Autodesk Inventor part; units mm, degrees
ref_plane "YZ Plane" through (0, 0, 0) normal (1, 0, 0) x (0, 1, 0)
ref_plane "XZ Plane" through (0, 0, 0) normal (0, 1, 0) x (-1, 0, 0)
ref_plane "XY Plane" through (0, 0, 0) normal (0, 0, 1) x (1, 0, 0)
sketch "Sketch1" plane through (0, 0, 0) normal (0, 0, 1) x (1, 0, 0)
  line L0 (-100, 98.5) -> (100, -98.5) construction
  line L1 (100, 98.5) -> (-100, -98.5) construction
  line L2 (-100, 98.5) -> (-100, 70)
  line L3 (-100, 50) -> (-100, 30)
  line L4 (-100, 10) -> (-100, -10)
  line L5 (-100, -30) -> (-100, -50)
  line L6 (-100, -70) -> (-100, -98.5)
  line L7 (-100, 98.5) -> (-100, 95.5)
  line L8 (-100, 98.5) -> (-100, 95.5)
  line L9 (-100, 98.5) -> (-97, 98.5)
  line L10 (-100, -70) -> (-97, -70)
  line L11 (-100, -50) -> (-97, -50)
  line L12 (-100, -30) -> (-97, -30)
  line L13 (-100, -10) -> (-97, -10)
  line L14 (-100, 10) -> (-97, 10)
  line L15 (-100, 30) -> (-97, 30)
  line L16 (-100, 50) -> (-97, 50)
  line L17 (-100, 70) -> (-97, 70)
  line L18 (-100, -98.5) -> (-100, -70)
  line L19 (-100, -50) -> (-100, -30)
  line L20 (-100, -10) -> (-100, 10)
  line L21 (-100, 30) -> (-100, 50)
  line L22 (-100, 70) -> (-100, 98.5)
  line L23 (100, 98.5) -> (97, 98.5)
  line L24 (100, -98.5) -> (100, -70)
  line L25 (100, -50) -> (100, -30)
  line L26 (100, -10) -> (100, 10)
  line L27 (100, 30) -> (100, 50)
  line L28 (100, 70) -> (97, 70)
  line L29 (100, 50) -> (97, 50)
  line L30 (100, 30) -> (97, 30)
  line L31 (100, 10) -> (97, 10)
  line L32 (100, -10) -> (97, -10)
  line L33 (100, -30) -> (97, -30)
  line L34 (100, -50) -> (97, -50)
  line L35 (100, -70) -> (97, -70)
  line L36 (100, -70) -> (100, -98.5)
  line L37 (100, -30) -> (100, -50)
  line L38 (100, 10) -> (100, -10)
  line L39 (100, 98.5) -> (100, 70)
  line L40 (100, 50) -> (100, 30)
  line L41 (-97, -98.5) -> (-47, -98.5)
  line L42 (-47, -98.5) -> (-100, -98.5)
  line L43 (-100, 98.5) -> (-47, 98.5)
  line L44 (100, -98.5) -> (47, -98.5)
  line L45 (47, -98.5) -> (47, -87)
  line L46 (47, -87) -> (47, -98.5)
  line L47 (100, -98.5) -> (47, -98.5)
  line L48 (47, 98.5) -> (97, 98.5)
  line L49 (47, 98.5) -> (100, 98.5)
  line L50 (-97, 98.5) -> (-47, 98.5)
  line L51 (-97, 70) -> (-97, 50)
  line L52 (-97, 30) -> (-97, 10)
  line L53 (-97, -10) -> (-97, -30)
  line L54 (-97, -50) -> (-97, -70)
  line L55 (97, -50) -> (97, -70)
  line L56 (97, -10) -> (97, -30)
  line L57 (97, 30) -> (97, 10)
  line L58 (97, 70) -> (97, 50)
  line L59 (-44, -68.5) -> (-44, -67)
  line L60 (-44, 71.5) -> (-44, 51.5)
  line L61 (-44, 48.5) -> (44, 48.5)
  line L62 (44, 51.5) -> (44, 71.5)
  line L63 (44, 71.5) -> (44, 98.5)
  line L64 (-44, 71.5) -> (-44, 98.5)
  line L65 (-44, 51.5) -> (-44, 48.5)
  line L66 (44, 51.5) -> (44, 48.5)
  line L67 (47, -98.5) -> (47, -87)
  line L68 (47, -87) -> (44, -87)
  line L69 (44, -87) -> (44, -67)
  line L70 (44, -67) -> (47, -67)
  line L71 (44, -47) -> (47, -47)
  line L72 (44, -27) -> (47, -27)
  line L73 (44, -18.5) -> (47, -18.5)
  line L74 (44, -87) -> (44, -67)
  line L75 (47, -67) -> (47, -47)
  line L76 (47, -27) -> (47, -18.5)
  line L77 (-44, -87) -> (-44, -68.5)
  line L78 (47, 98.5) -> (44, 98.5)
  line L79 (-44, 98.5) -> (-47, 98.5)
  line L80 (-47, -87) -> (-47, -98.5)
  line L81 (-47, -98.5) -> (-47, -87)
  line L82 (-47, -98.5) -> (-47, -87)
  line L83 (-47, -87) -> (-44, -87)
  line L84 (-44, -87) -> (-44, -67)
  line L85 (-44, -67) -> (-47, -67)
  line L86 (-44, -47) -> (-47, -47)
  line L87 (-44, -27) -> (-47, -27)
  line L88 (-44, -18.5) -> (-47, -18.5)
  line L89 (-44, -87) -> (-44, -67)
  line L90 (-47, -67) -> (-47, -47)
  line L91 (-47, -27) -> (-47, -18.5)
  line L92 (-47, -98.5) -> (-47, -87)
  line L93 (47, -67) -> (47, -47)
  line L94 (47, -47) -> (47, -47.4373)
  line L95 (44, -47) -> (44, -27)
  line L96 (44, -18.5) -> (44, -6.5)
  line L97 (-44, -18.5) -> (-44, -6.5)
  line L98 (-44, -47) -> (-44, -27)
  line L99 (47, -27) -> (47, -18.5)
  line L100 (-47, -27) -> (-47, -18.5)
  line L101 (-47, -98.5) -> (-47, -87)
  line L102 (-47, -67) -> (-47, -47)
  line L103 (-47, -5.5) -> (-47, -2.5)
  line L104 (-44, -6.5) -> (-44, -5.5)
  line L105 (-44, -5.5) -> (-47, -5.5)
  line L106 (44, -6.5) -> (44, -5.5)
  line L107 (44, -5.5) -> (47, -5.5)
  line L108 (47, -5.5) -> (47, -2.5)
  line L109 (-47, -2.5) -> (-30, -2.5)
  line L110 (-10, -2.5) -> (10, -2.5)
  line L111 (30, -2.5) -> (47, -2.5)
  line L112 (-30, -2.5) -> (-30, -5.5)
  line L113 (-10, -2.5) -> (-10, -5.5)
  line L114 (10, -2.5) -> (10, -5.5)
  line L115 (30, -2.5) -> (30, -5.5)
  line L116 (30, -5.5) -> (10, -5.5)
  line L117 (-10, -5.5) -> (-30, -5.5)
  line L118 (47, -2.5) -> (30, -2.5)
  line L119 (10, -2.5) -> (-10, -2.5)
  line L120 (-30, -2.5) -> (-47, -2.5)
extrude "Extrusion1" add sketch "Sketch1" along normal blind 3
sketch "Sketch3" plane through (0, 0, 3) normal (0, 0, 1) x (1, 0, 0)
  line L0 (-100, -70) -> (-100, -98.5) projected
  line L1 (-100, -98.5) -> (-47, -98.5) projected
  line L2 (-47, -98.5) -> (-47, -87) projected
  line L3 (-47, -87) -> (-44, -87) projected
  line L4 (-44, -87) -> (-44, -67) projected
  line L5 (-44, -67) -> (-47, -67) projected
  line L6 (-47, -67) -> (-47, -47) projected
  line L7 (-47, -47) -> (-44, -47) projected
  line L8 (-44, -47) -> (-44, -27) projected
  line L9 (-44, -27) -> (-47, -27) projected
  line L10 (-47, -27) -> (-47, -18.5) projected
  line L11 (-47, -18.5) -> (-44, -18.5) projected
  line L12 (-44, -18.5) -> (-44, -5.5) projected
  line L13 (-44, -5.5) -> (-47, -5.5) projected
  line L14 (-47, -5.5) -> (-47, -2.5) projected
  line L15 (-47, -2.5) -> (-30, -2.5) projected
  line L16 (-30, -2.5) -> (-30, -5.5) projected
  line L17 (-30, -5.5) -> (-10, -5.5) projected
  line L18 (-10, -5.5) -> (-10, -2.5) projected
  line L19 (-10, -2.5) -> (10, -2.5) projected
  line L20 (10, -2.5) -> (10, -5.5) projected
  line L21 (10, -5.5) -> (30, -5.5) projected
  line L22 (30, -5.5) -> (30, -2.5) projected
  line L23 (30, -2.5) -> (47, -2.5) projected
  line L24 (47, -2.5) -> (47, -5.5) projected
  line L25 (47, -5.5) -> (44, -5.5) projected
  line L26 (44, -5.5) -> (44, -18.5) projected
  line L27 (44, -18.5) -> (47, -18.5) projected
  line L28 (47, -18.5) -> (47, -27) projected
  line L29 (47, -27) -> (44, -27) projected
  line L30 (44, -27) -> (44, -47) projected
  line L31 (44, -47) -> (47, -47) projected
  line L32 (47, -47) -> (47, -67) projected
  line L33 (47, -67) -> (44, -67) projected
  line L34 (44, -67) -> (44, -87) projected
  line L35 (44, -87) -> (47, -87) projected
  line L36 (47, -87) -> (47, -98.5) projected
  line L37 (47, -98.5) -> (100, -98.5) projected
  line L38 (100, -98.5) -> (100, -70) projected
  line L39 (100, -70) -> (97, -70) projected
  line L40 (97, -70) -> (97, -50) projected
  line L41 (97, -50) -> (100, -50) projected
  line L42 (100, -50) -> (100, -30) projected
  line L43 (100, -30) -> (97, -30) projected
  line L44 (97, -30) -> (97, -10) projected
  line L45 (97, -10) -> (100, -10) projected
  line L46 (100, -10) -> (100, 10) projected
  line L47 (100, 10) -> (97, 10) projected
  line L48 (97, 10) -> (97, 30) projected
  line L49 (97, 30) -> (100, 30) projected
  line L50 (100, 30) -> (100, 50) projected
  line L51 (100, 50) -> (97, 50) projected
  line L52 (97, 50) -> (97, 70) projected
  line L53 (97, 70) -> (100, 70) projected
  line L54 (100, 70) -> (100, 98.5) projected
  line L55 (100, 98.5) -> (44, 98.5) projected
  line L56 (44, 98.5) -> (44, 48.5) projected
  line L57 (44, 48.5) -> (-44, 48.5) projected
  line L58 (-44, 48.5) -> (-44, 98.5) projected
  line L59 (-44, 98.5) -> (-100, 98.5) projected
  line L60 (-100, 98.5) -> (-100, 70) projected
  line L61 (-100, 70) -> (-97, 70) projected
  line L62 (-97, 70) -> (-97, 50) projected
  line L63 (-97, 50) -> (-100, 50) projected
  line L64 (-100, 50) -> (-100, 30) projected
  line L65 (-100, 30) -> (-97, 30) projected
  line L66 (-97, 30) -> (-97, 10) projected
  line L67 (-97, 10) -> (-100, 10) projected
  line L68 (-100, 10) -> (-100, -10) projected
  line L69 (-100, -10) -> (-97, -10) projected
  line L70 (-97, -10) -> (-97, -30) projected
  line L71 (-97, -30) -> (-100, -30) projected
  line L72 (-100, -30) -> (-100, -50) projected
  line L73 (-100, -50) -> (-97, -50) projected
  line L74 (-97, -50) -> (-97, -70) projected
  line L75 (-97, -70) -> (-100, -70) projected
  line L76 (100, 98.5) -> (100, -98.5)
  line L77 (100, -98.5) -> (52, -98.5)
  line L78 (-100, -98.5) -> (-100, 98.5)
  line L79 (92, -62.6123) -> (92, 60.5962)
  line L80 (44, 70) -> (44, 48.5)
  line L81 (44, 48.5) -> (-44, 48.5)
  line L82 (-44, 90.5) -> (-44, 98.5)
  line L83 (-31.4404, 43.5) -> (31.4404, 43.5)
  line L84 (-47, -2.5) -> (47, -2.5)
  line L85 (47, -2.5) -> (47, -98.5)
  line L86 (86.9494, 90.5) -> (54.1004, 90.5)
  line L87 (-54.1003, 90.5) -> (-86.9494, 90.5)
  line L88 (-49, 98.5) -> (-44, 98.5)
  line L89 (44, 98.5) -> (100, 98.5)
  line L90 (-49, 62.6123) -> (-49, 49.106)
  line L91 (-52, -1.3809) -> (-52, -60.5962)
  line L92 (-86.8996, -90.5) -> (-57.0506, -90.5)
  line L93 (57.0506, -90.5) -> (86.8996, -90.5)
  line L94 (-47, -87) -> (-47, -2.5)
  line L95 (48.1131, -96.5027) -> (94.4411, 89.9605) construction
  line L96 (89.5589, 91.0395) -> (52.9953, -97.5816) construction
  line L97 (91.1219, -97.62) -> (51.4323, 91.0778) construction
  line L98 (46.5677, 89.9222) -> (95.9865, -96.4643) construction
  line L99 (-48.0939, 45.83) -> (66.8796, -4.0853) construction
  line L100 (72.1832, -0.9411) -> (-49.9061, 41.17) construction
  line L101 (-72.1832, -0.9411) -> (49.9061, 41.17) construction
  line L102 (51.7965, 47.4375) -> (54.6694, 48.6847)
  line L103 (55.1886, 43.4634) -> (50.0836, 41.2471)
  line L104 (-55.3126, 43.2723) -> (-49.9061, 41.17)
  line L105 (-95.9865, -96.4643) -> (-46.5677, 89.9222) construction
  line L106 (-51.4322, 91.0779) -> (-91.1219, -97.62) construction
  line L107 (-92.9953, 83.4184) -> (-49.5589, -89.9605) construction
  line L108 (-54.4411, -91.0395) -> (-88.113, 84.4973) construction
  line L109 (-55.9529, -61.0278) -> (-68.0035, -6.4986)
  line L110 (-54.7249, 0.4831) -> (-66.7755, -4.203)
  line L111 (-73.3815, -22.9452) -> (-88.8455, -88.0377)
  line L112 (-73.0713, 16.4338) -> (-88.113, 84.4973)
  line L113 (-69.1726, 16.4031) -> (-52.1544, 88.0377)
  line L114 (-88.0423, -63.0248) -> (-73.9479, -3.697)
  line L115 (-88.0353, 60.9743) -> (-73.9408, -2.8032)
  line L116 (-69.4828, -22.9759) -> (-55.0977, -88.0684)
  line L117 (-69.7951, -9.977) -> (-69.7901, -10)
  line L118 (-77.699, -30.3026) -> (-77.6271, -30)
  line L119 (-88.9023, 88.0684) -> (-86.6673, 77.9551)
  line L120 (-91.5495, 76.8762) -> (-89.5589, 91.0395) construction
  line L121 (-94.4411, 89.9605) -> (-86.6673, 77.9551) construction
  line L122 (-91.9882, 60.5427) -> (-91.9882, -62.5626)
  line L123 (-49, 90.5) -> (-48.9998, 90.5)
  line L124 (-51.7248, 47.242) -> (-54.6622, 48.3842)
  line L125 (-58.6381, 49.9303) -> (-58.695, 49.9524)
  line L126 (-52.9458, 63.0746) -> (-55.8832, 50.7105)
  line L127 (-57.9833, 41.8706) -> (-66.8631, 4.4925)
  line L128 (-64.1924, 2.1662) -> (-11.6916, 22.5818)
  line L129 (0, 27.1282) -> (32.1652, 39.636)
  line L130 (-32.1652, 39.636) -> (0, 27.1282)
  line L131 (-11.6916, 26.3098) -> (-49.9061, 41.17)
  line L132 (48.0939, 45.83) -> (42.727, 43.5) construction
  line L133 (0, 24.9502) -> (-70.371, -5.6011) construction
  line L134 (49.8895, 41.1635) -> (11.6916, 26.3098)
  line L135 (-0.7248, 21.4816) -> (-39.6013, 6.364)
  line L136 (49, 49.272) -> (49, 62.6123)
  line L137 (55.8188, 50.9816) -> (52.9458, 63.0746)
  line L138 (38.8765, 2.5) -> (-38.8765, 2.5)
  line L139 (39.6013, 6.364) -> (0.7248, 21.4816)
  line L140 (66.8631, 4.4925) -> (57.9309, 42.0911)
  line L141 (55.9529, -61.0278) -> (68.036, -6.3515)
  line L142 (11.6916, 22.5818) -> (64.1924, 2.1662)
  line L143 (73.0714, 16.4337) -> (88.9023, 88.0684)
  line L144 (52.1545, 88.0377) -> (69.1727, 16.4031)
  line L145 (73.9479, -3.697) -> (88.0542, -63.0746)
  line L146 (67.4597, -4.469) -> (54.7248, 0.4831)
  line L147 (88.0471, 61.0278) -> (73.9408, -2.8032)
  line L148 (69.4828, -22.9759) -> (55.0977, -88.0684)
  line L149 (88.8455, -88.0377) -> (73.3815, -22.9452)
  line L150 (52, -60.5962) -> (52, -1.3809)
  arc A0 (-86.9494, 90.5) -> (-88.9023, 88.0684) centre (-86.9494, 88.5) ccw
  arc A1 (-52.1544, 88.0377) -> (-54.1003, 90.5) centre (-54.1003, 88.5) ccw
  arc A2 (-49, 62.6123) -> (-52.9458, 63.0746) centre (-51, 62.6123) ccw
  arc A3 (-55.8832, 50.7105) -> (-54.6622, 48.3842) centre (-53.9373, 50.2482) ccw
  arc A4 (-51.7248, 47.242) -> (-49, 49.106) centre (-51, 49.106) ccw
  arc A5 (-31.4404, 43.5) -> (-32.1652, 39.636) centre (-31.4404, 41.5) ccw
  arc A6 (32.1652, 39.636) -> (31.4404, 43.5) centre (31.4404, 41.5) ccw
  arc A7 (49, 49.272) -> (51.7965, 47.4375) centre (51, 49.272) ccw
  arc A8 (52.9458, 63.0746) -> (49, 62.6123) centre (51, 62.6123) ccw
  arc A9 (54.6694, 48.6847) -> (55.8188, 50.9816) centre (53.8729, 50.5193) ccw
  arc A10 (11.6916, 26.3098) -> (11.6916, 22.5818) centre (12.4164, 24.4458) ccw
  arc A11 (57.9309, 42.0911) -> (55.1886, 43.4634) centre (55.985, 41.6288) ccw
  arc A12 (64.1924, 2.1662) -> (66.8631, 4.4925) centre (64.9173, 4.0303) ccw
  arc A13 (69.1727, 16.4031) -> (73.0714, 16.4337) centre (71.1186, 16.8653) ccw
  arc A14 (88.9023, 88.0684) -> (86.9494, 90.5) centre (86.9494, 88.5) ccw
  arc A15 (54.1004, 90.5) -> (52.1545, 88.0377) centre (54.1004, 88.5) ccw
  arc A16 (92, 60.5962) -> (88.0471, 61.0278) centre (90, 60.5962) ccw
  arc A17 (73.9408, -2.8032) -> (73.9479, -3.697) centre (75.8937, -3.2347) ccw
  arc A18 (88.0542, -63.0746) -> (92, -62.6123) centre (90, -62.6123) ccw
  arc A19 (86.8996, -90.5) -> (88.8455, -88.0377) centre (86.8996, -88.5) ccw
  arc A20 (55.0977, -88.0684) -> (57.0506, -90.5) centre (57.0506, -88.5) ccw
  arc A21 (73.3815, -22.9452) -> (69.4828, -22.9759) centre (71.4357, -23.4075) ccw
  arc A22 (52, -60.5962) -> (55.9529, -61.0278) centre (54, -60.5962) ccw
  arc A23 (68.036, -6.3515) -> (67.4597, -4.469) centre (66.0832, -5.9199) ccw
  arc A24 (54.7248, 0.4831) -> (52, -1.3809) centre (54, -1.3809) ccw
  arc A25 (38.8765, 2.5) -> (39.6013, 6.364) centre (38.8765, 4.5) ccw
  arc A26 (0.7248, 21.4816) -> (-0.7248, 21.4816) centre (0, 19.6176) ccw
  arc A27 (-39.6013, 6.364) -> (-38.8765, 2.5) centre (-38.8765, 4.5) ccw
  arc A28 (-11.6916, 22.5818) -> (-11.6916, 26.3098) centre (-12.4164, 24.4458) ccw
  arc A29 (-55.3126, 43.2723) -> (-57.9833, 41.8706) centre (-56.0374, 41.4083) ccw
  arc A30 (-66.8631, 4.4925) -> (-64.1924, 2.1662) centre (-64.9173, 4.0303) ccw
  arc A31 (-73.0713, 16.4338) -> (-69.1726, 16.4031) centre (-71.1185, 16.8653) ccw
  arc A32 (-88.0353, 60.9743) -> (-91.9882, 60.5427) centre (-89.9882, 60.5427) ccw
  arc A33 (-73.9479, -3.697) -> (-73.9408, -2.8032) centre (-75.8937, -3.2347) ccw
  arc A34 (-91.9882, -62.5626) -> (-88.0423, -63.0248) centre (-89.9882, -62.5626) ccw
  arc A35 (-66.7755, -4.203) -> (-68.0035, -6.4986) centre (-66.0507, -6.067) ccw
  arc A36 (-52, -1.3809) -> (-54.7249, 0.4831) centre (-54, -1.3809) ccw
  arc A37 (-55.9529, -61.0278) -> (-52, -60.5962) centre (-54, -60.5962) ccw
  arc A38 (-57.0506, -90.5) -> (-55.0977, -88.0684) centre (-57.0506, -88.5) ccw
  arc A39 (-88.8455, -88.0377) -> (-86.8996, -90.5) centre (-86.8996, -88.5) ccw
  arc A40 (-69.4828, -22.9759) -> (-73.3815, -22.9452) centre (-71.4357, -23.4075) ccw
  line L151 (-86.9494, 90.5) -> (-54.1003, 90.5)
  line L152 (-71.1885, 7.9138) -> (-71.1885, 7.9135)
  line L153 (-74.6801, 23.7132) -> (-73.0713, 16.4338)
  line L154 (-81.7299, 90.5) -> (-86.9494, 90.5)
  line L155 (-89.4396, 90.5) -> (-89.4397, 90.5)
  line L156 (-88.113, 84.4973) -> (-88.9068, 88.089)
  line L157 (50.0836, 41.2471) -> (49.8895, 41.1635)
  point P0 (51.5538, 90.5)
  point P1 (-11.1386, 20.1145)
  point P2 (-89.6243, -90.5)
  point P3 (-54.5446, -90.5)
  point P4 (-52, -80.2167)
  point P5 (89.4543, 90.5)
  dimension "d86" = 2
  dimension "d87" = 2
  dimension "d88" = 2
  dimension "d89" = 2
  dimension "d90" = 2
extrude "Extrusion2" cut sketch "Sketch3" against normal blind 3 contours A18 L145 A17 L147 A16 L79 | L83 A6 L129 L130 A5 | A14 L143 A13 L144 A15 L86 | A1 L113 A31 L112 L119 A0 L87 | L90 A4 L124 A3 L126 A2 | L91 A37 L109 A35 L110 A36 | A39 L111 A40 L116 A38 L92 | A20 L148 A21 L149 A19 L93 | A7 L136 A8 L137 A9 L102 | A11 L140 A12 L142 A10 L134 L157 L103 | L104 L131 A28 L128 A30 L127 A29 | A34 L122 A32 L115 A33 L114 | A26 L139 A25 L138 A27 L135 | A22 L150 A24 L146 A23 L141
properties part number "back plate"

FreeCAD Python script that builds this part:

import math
import FreeCAD as App
import Part
import Sketcher
Q = App.Units.Quantity


def add_polygon(sketch, points):
    """Adds a closed chain of lines whose ends are joined by coincident constraints."""
    first, n = sketch.GeometryCount, len(points)
    for a, b in zip(points, points[1:] + points[:1]):
        sketch.addGeometry(Part.LineSegment(App.Vector(*a, 0), App.Vector(*b, 0)), False)
    for i in range(n):
        sketch.addConstraint(Sketcher.Constraint("Coincident", first + i, 2, first + (i + 1) % n, 1))

doc = App.newDocument("Part")
params = doc.addObject("Spreadsheet::Sheet", "Params")
for row, (alias, value) in enumerate([
    ("sketch1_width", "56 mm"),
    ("sketch1_width2", "3 mm"),
    ("sketch1_width3", "17 mm"),
    ("sketch1_width4", "20 mm"),
    ("sketch1_height", "13 mm"),
    ("pad1_length", "3 mm"),
    ("sketch2_radius", "2 mm"),
    ("pocket1_length", "3 mm"),
], start=1):
    params.set(f"A{row}", alias)
    params.set(f"B{row}", "=" + value)
    params.setAlias(f"B{row}", alias)

body = doc.addObject("PartDesign::Body", "Body")

sketch1 = body.newObject("Sketcher::SketchObject", "Sketch")
sketch1.AttachmentSupport = (doc.getObject("XY_Plane"), [""])
sketch1.MapMode = "FlatFace"
add_polygon(sketch1, [(-44, 98.5), (-100, 98.5), (-100, 70), (-97, 70), (-97, 50), (-100, 50), (-100, 30), (-97, 30), (-97, 10), (-100, 10), (-100, -10), (-97, -10), (-97, -30), (-100, -30), (-100, -50), (-97, -50), (-97, -70), (-100, -70), (-100, -98.5), (-47, -98.5), (-47, -87), (-44, -87), (-44, -67), (-47, -67), (-47, -47), (-44, -47), (-44, -27), (-47, -27), (-47, -18.5), (-44, -18.5), (-44, -5.5), (-47, -5.5), (-47, -2.5), (-30, -2.5), (-30, -5.5), (-10, -5.5), (-10, -2.5), (10, -2.5), (10, -5.5), (30, -5.5), (30, -2.5), (47, -2.5), (47, -5.5), (44, -5.5), (44, -18.5), (47, -18.5), (47, -27), (44, -27), (44, -47), (47, -47), (47, -67), (44, -67), (44, -87), (47, -87), (47, -98.5), (100, -98.5), (100, -70), (97, -70), (97, -50), (100, -50), (100, -30), (97, -30), (97, -10), (100, -10), (100, 10), (97, 10), (97, 30), (100, 30), (100, 50), (97, 50), (97, 70), (100, 70), (100, 98.5), (44, 98.5), (44, 48.5), (-44, 48.5)])
sketch1.addConstraint(Sketcher.Constraint("Horizontal", 0))
sketch1.addConstraint(Sketcher.Constraint("Vertical", 1))
sketch1.addConstraint(Sketcher.Constraint("Horizontal", 2))
sketch1.addConstraint(Sketcher.Constraint("Vertical", 3))
sketch1.addConstraint(Sketcher.Constraint("Horizontal", 4))
sketch1.addConstraint(Sketcher.Constraint("Vertical", 5))
sketch1.addConstraint(Sketcher.Constraint("Horizontal", 6))
sketch1.addConstraint(Sketcher.Constraint("Vertical", 7))
sketch1.addConstraint(Sketcher.Constraint("Horizontal", 8))
sketch1.addConstraint(Sketcher.Constraint("Vertical", 9))
sketch1.addConstraint(Sketcher.Constraint("Horizontal", 10))
sketch1.addConstraint(Sketcher.Constraint("Vertical", 11))
sketch1.addConstraint(Sketcher.Constraint("Horizontal", 12))
sketch1.addConstraint(Sketcher.Constraint("Vertical", 13))
sketch1.addConstraint(Sketcher.Constraint("Horizontal", 14))
sketch1.addConstraint(Sketcher.Constraint("Vertical", 15))
sketch1.addConstraint(Sketcher.Constraint("Horizontal", 16))
sketch1.addConstraint(Sketcher.Constraint("Vertical", 17))
sketch1.addConstraint(Sketcher.Constraint("Horizontal", 18))
sketch1.addConstraint(Sketcher.Constraint("Vertical", 19))
sketch1.addConstraint(Sketcher.Constraint("Horizontal", 20))
sketch1.addConstraint(Sketcher.Constraint("Vertical", 21))
sketch1.addConstraint(Sketcher.Constraint("Horizontal", 22))
sketch1.addConstraint(Sketcher.Constraint("Vertical", 23))
sketch1.addConstraint(Sketcher.Constraint("Horizontal", 24))
sketch1.addConstraint(Sketcher.Constraint("Vertical", 25))
sketch1.addConstraint(Sketcher.Constraint("Horizontal", 26))
sketch1.addConstraint(Sketcher.Constraint("Vertical", 27))
sketch1.addConstraint(Sketcher.Constraint("Horizontal", 28))
sketch1.addConstraint(Sketcher.Constraint("Vertical", 29))
sketch1.addConstraint(Sketcher.Constraint("Horizontal", 30))
sketch1.addConstraint(Sketcher.Constraint("Vertical", 31))
sketch1.addConstraint(Sketcher.Constraint("Horizontal", 32))
sketch1.addConstraint(Sketcher.Constraint("Vertical", 33))
sketch1.addConstraint(Sketcher.Constraint("Horizontal", 34))
sketch1.addConstraint(Sketcher.Constraint("Vertical", 35))
sketch1.addConstraint(Sketcher.Constraint("Horizontal", 36))
sketch1.addConstraint(Sketcher.Constraint("Vertical", 37))
sketch1.addConstraint(Sketcher.Constraint("Horizontal", 38))
sketch1.addConstraint(Sketcher.Constraint("Vertical", 39))
sketch1.addConstraint(Sketcher.Constraint("Horizontal", 40))
sketch1.addConstraint(Sketcher.Constraint("Vertical", 41))
sketch1.addConstraint(Sketcher.Constraint("Horizontal", 42))
sketch1.addConstraint(Sketcher.Constraint("Vertical", 43))
sketch1.addConstraint(Sketcher.Constraint("Horizontal", 44))
sketch1.addConstraint(Sketcher.Constraint("Vertical", 45))
sketch1.addConstraint(Sketcher.Constraint("Horizontal", 46))
sketch1.addConstraint(Sketcher.Constraint("Vertical", 47))
sketch1.addConstraint(Sketcher.Constraint("Horizontal", 48))
sketch1.addConstraint(Sketcher.Constraint("Vertical", 49))
sketch1.addConstraint(Sketcher.Constraint("Horizontal", 50))
sketch1.addConstraint(Sketcher.Constraint("Vertical", 51))
sketch1.addConstraint(Sketcher.Constraint("Horizontal", 52))
sketch1.addConstraint(Sketcher.Constraint("Vertical", 53))
sketch1.addConstraint(Sketcher.Constraint("Horizontal", 54))
sketch1.addConstraint(Sketcher.Constraint("Vertical", 55))
sketch1.addConstraint(Sketcher.Constraint("Horizontal", 56))
sketch1.addConstraint(Sketcher.Constraint("Vertical", 57))
sketch1.addConstraint(Sketcher.Constraint("Horizontal", 58))
sketch1.addConstraint(Sketcher.Constraint("Vertical", 59))
sketch1.addConstraint(Sketcher.Constraint("Horizontal", 60))
sketch1.addConstraint(Sketcher.Constraint("Vertical", 61))
sketch1.addConstraint(Sketcher.Constraint("Horizontal", 62))
sketch1.addConstraint(Sketcher.Constraint("Vertical", 63))
sketch1.addConstraint(Sketcher.Constraint("Horizontal", 64))
sketch1.addConstraint(Sketcher.Constraint("Vertical", 65))
sketch1.addConstraint(Sketcher.Constraint("Horizontal", 66))
sketch1.addConstraint(Sketcher.Constraint("Vertical", 67))
sketch1.addConstraint(Sketcher.Constraint("Horizontal", 68))
sketch1.addConstraint(Sketcher.Constraint("Vertical", 69))
sketch1.addConstraint(Sketcher.Constraint("Horizontal", 70))
sketch1.addConstraint(Sketcher.Constraint("Vertical", 71))
sketch1.addConstraint(Sketcher.Constraint("Horizontal", 72))
sketch1.addConstraint(Sketcher.Constraint("Vertical", 73))
sketch1.addConstraint(Sketcher.Constraint("Horizontal", 74))
sketch1.addConstraint(Sketcher.Constraint("Vertical", 75))
sketch1.addConstraint(Sketcher.Constraint("Symmetric", 0, 2, 54, 2, -1, 1))
sketch1.addConstraint(Sketcher.Constraint("Symmetric", 2, 2, 56, 2, -1, 1))
sketch1.addConstraint(Sketcher.Constraint("Symmetric", 4, 2, 58, 2, -1, 1))
sketch1.addConstraint(Sketcher.Constraint("Symmetric", 6, 2, 60, 2, -1, 1))
sketch1.addConstraint(Sketcher.Constraint("Symmetric", 8, 2, 62, 2, -1, 1))
sketch1.addConstraint(Sketcher.Constraint("Symmetric", 10, 2, 64, 2, -1, 1))
sketch1.addConstraint(Sketcher.Constraint("Symmetric", 12, 2, 66, 2, -1, 1))
sketch1.addConstraint(Sketcher.Constraint("Symmetric", 14, 2, 68, 2, -1, 1))
sketch1.addConstraint(Sketcher.Constraint("Symmetric", 16, 2, 70, 2, -1, 1))
sketch1.addConstraint(Sketcher.Constraint("Symmetric", 34, 2, 37, 2, -2))
sketch1.addConstraint(Sketcher.Constraint("Symmetric", 32, 2, 39, 2, -2))
sketch1.addConstraint(Sketcher.Constraint("Symmetric", 30, 2, 41, 2, -2))
sketch1.addConstraint(Sketcher.Constraint("Symmetric", 28, 2, 43, 2, -2))
sketch1.addConstraint(Sketcher.Constraint("Symmetric", 26, 2, 45, 2, -2))
sketch1.addConstraint(Sketcher.Constraint("Symmetric", 24, 2, 47, 2, -2))
sketch1.addConstraint(Sketcher.Constraint("Symmetric", 22, 2, 49, 2, -2))
sketch1.addConstraint(Sketcher.Constraint("Symmetric", 20, 2, 51, 2, -2))
sketch1.addConstraint(Sketcher.Constraint("Symmetric", 18, 2, 53, 2, -2))
sketch1.addConstraint(Sketcher.Constraint("Symmetric", 16, 2, 55, 2, -2))
sketch1.addConstraint(Sketcher.Constraint("Symmetric", 14, 2, 57, 2, -2))
sketch1.addConstraint(Sketcher.Constraint("Symmetric", 12, 2, 59, 2, -2))
sketch1.addConstraint(Sketcher.Constraint("Symmetric", 10, 2, 61, 2, -2))
sketch1.addConstraint(Sketcher.Constraint("Symmetric", 72, 2, 75, 2, -2))
sketch1.addConstraint(Sketcher.Constraint("Horizontal", 30, 2, 33, 2))
sketch1.addConstraint(Sketcher.Constraint("Horizontal", 32, 2, 35, 2))
sketch1.addConstraint(Sketcher.Constraint("Vertical", 1, 2, 4, 2))
sketch1.addConstraint(Sketcher.Constraint("Vertical", 3, 2, 6, 2))
sketch1.addConstraint(Sketcher.Constraint("Vertical", 5, 2, 8, 2))
sketch1.addConstraint(Sketcher.Constraint("Vertical", 19, 2, 22, 2))
sketch1.addConstraint(Sketcher.Constraint("Vertical", 21, 2, 24, 2))
sketch1.addConstraint(Sketcher.Constraint("Vertical", 23, 2, 26, 2))
sketch1.addConstraint(Sketcher.Constraint("Vertical", 25, 2, 28, 2))
sketch1.addConstraint(Sketcher.Constraint("Vertical", 27, 2, 30, 2))
sketch1.addConstraint(Sketcher.Constraint("Vertical", 51, 2, 72, 2))
sketch1.addConstraint(Sketcher.Constraint("Equal", 16, 20))
sketch1.addConstraint(Sketcher.Constraint("Equal", 34, 36))
sketch1.addConstraint(Sketcher.Constraint("Equal", 38, 3))
sketch1.addConstraint(Sketcher.Constraint("Equal", 3, 5))
sketch1.addConstraint(Sketcher.Constraint("Equal", 5, 7))
sketch1.addConstraint(Sketcher.Constraint("Equal", 7, 9))
sketch1.addConstraint(Sketcher.Constraint("Equal", 15, 21))
sketch1.addConstraint(Sketcher.Constraint("Equal", 21, 23))
sketch1.addConstraint(Sketcher.Constraint("Equal", 23, 25))
sketch1.addConstraint(Sketcher.Constraint("Equal", 70, 31))
sketch1.addConstraint(Sketcher.Constraint("DistanceX", 0, 2, 0, 1, Q("56 mm")))
sketch1.addConstraint(Sketcher.Constraint("DistanceX", 2, 1, 2, 2, Q("3 mm")))
sketch1.addConstraint(Sketcher.Constraint("DistanceX", 32, 1, 32, 2, Q("17 mm")))
sketch1.addConstraint(Sketcher.Constraint("DistanceX", 34, 1, 34, 2, Q("20 mm")))
sketch1.addConstraint(Sketcher.Constraint("DistanceY", 29, 1, 29, 2, Q("13 mm")))
sketch1.addConstraint(Sketcher.Constraint("DistanceY", 73, 2, 73, 1, Q("50 mm")))
sketch1.addConstraint(Sketcher.Constraint("DistanceY", 1, 2, 1, 1, Q("28.5 mm")))
sketch1.addConstraint(Sketcher.Constraint("DistanceY", 19, 1, 19, 2, Q("11.5 mm")))
sketch1.addConstraint(Sketcher.Constraint("DistanceY", 27, 1, 27, 2, Q("8.5 mm")))
sketch1.setExpression("Constraints[196]", "Params.sketch1_width")
sketch1.setExpression("Constraints[197]", "Params.sketch1_width2")
sketch1.setExpression("Constraints[198]", "Params.sketch1_width3")
sketch1.setExpression("Constraints[199]", "Params.sketch1_width4")
sketch1.setExpression("Constraints[200]", "Params.sketch1_height")
pad1 = body.newObject("PartDesign::Pad", "Pad")
pad1.Profile = sketch1
pad1.setExpression("Length", "Params.pad1_length")

sketch2 = body.newObject("Sketcher::SketchObject", "Sketch001")
sketch2.AttachmentSupport = (doc.getObject("XY_Plane"), [""])
sketch2.MapMode = "FlatFace"
sketch2.AttachmentOffset = App.Placement(App.Vector(0, 0, 3), App.Rotation())
sketch2.addGeometry(Part.ArcOfCircle(Part.Circle(App.Vector(90, -62.61, 0), App.Vector(0, 0, 1), 2), math.radians(-167), math.radians(0)), False)
sketch2.addGeometry(Part.LineSegment(App.Vector(92, -62.61, 0), App.Vector(92, 60.6, 0)), False)
sketch2.addGeometry(Part.ArcOfCircle(Part.Circle(App.Vector(90, 60.6, 0), App.Vector(0, 0, 1), 2), math.radians(0), math.radians(168)), False)
sketch2.addGeometry(Part.LineSegment(App.Vector(88.05, 61.03, 0), App.Vector(73.94, -2.8, 0)), False)
sketch2.addGeometry(Part.ArcOfCircle(Part.Circle(App.Vector(75.89, -3.23, 0), App.Vector(0, 0, 1), 2), math.radians(168), math.radians(193)), False)
sketch2.addGeometry(Part.LineSegment(App.Vector(73.95, -3.7, 0), App.Vector(88.05, -63.07, 0)), False)
sketch2.addGeometry(Part.LineSegment(App.Vector(31.44, 43.5, 0), App.Vector(-31.44, 43.5, 0)), False)
sketch2.addGeometry(Part.ArcOfCircle(Part.Circle(App.Vector(-31.44, 41.5, 0), App.Vector(0, 0, 1), 2), math.radians(90), math.radians(249)), False)
sketch2.addGeometry(Part.LineSegment(App.Vector(-32.17, 39.64, 0), App.Vector(0, 27.13, 0)), False)
sketch2.addGeometry(Part.LineSegment(App.Vector(0, 27.13, 0), App.Vector(32.17, 39.64, 0)), False)
sketch2.addGeometry(Part.ArcOfCircle(Part.Circle(App.Vector(31.44, 41.5, 0), App.Vector(0, 0, 1), 2), math.radians(-69), math.radians(90)), False)
sketch2.addGeometry(Part.ArcOfCircle(Part.Circle(App.Vector(86.95, 88.5, 0), App.Vector(0, 0, 1), 2), math.radians(-12), math.radians(90)), False)
sketch2.addGeometry(Part.LineSegment(App.Vector(86.95, 90.5, 0), App.Vector(54.1, 90.5, 0)), False)
sketch2.addGeometry(Part.ArcOfCircle(Part.Circle(App.Vector(54.1, 88.5, 0), App.Vector(0, 0, 1), 2), math.radians(90), math.radians(193)), False)
sketch2.addGeometry(Part.LineSegment(App.Vector(52.15, 88.04, 0), App.Vector(69.17, 16.4, 0)), False)
sketch2.addGeometry(Part.ArcOfCircle(Part.Circle(App.Vector(71.12, 16.87, 0), App.Vector(0, 0, 1), 2), math.radians(-167), math.radians(-12)), False)
sketch2.addGeometry(Part.LineSegment(App.Vector(73.07, 16.43, 0), App.Vector(88.9, 88.07, 0)), False)
sketch2.addGeometry(Part.ArcOfCircle(Part.Circle(App.Vector(-54.1, 88.5, 0), App.Vector(0, 0, 1), 2), math.radians(-13), math.radians(90)), False)
sketch2.addGeometry(Part.LineSegment(App.Vector(-54.1, 90.5, 0), App.Vector(-86.95, 90.5, 0)), False)
sketch2.addGeometry(Part.ArcOfCircle(Part.Circle(App.Vector(-86.95, 88.5, 0), App.Vector(0, 0, 1), 2), math.radians(90), math.radians(192)), False)
sketch2.addGeometry(Part.LineSegment(App.Vector(-88.9, 88.07, 0), App.Vector(-88.11, 84.5, 0)), False)
sketch2.addGeometry(Part.LineSegment(App.Vector(-88.11, 84.5, 0), App.Vector(-73.07, 16.43, 0)), False)
sketch2.addGeometry(Part.ArcOfCircle(Part.Circle(App.Vector(-71.12, 16.87, 0), App.Vector(0, 0, 1), 2), math.radians(-168), math.radians(-13)), False)
sketch2.addGeometry(Part.LineSegment(App.Vector(-69.17, 16.4, 0), App.Vector(-52.15, 88.04, 0)), False)
sketch2.addGeometry(Part.LineSegment(App.Vector(-49, 49.11, 0), App.Vector(-49, 62.61, 0)), False)
sketch2.addGeometry(Part.ArcOfCircle(Part.Circle(App.Vector(-51, 62.61, 0), App.Vector(0, 0, 1), 2), math.radians(0), math.radians(167)), False)
sketch2.addGeometry(Part.LineSegment(App.Vector(-52.95, 63.07, 0), App.Vector(-55.88, 50.71, 0)), False)
sketch2.addGeometry(Part.ArcOfCircle(Part.Circle(App.Vector(-53.94, 50.25, 0), App.Vector(0, 0, 1), 2), math.radians(167), math.radians(249)), False)
sketch2.addGeometry(Part.LineSegment(App.Vector(-54.66, 48.38, 0), App.Vector(-51.72, 47.24, 0)), False)
sketch2.addGeometry(Part.ArcOfCircle(Part.Circle(App.Vector(-51, 49.11, 0), App.Vector(0, 0, 1), 2), math.radians(-111), math.radians(0)), False)
sketch2.addGeometry(Part.LineSegment(App.Vector(-52, -60.6, 0), App.Vector(-52, -1.38, 0)), False)
sketch2.addGeometry(Part.ArcOfCircle(Part.Circle(App.Vector(-54, -1.38, 0), App.Vector(0, 0, 1), 2), math.radians(0), math.radians(111)), False)
sketch2.addGeometry(Part.LineSegment(App.Vector(-54.72, 0.48, 0), App.Vector(-66.78, -4.2, 0)), False)
sketch2.addGeometry(Part.ArcOfCircle(Part.Circle(App.Vector(-66.05, -6.07, 0), App.Vector(0, 0, 1), 2), math.radians(111), math.radians(192)), False)
sketch2.addGeometry(Part.LineSegment(App.Vector(-68, -6.5, 0), App.Vector(-55.95, -61.03, 0)), False)
sketch2.addGeometry(Part.ArcOfCircle(Part.Circle(App.Vector(-54, -60.6, 0), App.Vector(0, 0, 1), 2), math.radians(-168), math.radians(0)), False)
sketch2.addGeometry(Part.ArcOfCircle(Part.Circle(App.Vector(-86.9, -88.5, 0), App.Vector(0, 0, 1), 2), math.radians(167), math.radians(270)), False)
sketch2.addGeometry(Part.LineSegment(App.Vector(-86.9, -90.5, 0), App.Vector(-57.05, -90.5, 0)), False)
sketch2.addGeometry(Part.ArcOfCircle(Part.Circle(App.Vector(-57.05, -88.5, 0), App.Vector(0, 0, 1), 2), math.radians(-90), math.radians(12)), False)
sketch2.addGeometry(Part.LineSegment(App.Vector(-55.1, -88.07, 0), App.Vector(-69.48, -22.98, 0)), False)
sketch2.addGeometry(Part.ArcOfCircle(Part.Circle(App.Vector(-71.44, -23.41, 0), App.Vector(0, 0, 1), 2), math.radians(12), math.radians(167)), False)
sketch2.addGeometry(Part.LineSegment(App.Vector(-73.38, -22.95, 0), App.Vector(-88.85, -88.04, 0)), False)
sketch2.addGeometry(Part.ArcOfCircle(Part.Circle(App.Vector(57.05, -88.5, 0), App.Vector(0, 0, 1), 2), math.radians(168), math.radians(270)), False)
sketch2.addGeometry(Part.LineSegment(App.Vector(57.05, -90.5, 0), App.Vector(86.9, -90.5, 0)), False)
sketch2.addGeometry(Part.ArcOfCircle(Part.Circle(App.Vector(86.9, -88.5, 0), App.Vector(0, 0, 1), 2), math.radians(-90), math.radians(13)), False)
sketch2.addGeometry(Part.LineSegment(App.Vector(88.85, -88.04, 0), App.Vector(73.38, -22.95, 0)), False)
sketch2.addGeometry(Part.ArcOfCircle(Part.Circle(App.Vector(71.44, -23.41, 0), App.Vector(0, 0, 1), 2), math.radians(13), math.radians(168)), False)
sketch2.addGeometry(Part.LineSegment(App.Vector(69.48, -22.98, 0), App.Vector(55.1, -88.07, 0)), False)
sketch2.addGeometry(Part.ArcOfCircle(Part.Circle(App.Vector(51, 49.27, 0), App.Vector(0, 0, 1), 2), math.radians(180), math.radians(293)), False)
sketch2.addGeometry(Part.LineSegment(App.Vector(51.8, 47.44, 0), App.Vector(54.67, 48.68, 0)), False)
sketch2.addGeometry(Part.ArcOfCircle(Part.Circle(App.Vector(53.87, 50.52, 0), App.Vector(0, 0, 1), 2), math.radians(-67), math.radians(13)), False)
sketch2.addGeometry(Part.LineSegment(App.Vector(55.82, 50.98, 0), App.Vector(52.95, 63.07, 0)), False)
sketch2.addGeometry(Part.ArcOfCircle(Part.Circle(App.Vector(51, 62.61, 0), App.Vector(0, 0, 1), 2), math.radians(13), math.radians(180)), False)
sketch2.addGeometry(Part.LineSegment(App.Vector(49, 62.61, 0), App.Vector(49, 49.27, 0)), False)
sketch2.addGeometry(Part.ArcOfCircle(Part.Circle(App.Vector(55.98, 41.63, 0), App.Vector(0, 0, 1), 2), math.radians(13), math.radians(113)), False)
sketch2.addGeometry(Part.LineSegment(App.Vector(55.19, 43.46, 0), App.Vector(50.08, 41.25, 0)), False)
sketch2.addGeometry(Part.LineSegment(App.Vector(50.08, 41.25, 0), App.Vector(49.89, 41.16, 0)), False)
sketch2.addGeometry(Part.LineSegment(App.Vector(49.89, 41.16, 0), App.Vector(11.69, 26.31, 0)), False)
sketch2.addGeometry(Part.ArcOfCircle(Part.Circle(App.Vector(12.42, 24.45, 0), App.Vector(0, 0, 1), 2), math.radians(111), math.radians(249)), False)
sketch2.addGeometry(Part.LineSegment(App.Vector(11.69, 22.58, 0), App.Vector(64.19, 2.17, 0)), False)
sketch2.addGeometry(Part.ArcOfCircle(Part.Circle(App.Vector(64.92, 4.03, 0), App.Vector(0, 0, 1), 2), math.radians(-111), math.radians(13)), False)
sketch2.addGeometry(Part.LineSegment(App.Vector(66.86, 4.49, 0), App.Vector(57.93, 42.09, 0)), False)
sketch2.addGeometry(Part.LineSegment(App.Vector(-49.91, 41.17, 0), App.Vector(-55.31, 43.27, 0)), False)
sketch2.addGeometry(Part.ArcOfCircle(Part.Circle(App.Vector(-56.04, 41.41, 0), App.Vector(0, 0, 1), 2), math.radians(69), math.radians(167)), False)
sketch2.addGeometry(Part.LineSegment(App.Vector(-57.98, 41.87, 0), App.Vector(-66.86, 4.49, 0)), False)
sketch2.addGeometry(Part.ArcOfCircle(Part.Circle(App.Vector(-64.92, 4.03, 0), App.Vector(0, 0, 1), 2), math.radians(167), math.radians(291)), False)
sketch2.addGeometry(Part.LineSegment(App.Vector(-64.19, 2.17, 0), App.Vector(-11.69, 22.58, 0)), False)
sketch2.addGeometry(Part.ArcOfCircle(Part.Circle(App.Vector(-12.42, 24.45, 0), App.Vector(0, 0, 1), 2), math.radians(-69), math.radians(69)), False)
sketch2.addGeometry(Part.LineSegment(App.Vector(-11.69, 26.31, 0), App.Vector(-49.91, 41.17, 0)), False)
sketch2.addGeometry(Part.ArcOfCircle(Part.Circle(App.Vector(-89.99, -62.56, 0), App.Vector(0, 0, 1), 2), math.radians(180), math.radians(347)), False)
sketch2.addGeometry(Part.LineSegment(App.Vector(-88.04, -63.02, 0), App.Vector(-73.95, -3.7, 0)), False)
sketch2.addGeometry(Part.ArcOfCircle(Part.Circle(App.Vector(-75.89, -3.23, 0), App.Vector(0, 0, 1), 2), math.radians(-13), math.radians(12)), False)
sketch2.addGeometry(Part.LineSegment(App.Vector(-73.94, -2.8, 0), App.Vector(-88.04, 60.97, 0)), False)
sketch2.addGeometry(Part.ArcOfCircle(Part.Circle(App.Vector(-89.99, 60.54, 0), App.Vector(0, 0, 1), 2), math.radians(12), math.radians(180)), False)
sketch2.addGeometry(Part.LineSegment(App.Vector(-91.99, 60.54, 0), App.Vector(-91.99, -62.56, 0)), False)
sketch2.addGeometry(Part.ArcOfCircle(Part.Circle(App.Vector(0, 19.62, 0), App.Vector(0, 0, 1), 2), math.radians(69), math.radians(111)), False)
sketch2.addGeometry(Part.LineSegment(App.Vector(-0.72, 21.48, 0), App.Vector(-39.6, 6.36, 0)), False)
sketch2.addGeometry(Part.ArcOfCircle(Part.Circle(App.Vector(-38.88, 4.5, 0), App.Vector(0, 0, 1), 2), math.radians(111), math.radians(270)), False)
sketch2.addGeometry(Part.LineSegment(App.Vector(-38.88, 2.5, 0), App.Vector(38.88, 2.5, 0)), False)
sketch2.addGeometry(Part.ArcOfCircle(Part.Circle(App.Vector(38.88, 4.5, 0), App.Vector(0, 0, 1), 2), math.radians(-90), math.radians(69)), False)
sketch2.addGeometry(Part.LineSegment(App.Vector(39.6, 6.36, 0), App.Vector(0.72, 21.48, 0)), False)
sketch2.addGeometry(Part.ArcOfCircle(Part.Circle(App.Vector(54, -60.6, 0), App.Vector(0, 0, 1), 2), math.radians(180), math.radians(348)), False)
sketch2.addGeometry(Part.LineSegment(App.Vector(55.95, -61.03, 0), App.Vector(68.04, -6.35, 0)), False)
sketch2.addGeometry(Part.ArcOfCircle(Part.Circle(App.Vector(66.08, -5.92, 0), App.Vector(0, 0, 1), 2), math.radians(-12), math.radians(47)), False)
sketch2.addGeometry(Part.LineSegment(App.Vector(67.46, -4.47, 0), App.Vector(54.72, 0.48, 0)), False)
sketch2.addGeometry(Part.ArcOfCircle(Part.Circle(App.Vector(54, -1.38, 0), App.Vector(0, 0, 1), 2), math.radians(69), math.radians(180)), False)
sketch2.addGeometry(Part.LineSegment(App.Vector(52, -1.38, 0), App.Vector(52, -60.6, 0)), False)
sketch2.addConstraint(Sketcher.Constraint("Tangent", 0, 2, 1, 1))
sketch2.addConstraint(Sketcher.Constraint("Tangent", 1, 2, 2, 1))
sketch2.addConstraint(Sketcher.Constraint("Tangent", 2, 2, 3, 1))
sketch2.addConstraint(Sketcher.Constraint("Tangent", 3, 2, 4, 1))
sketch2.addConstraint(Sketcher.Constraint("Tangent", 4, 2, 5, 1))
sketch2.addConstraint(Sketcher.Constraint("Tangent", 5, 2, 0, 1))
sketch2.addConstraint(Sketcher.Constraint("Tangent", 6, 2, 7, 1))
sketch2.addConstraint(Sketcher.Constraint("Tangent", 7, 2, 8, 1))
sketch2.addConstraint(Sketcher.Constraint("Coincident", 8, 2, 9, 1))
sketch2.addConstraint(Sketcher.Constraint("Tangent", 9, 2, 10, 1))
sketch2.addConstraint(Sketcher.Constraint("Tangent", 10, 2, 6, 1))
sketch2.addConstraint(Sketcher.Constraint("Tangent", 11, 2, 12, 1))
sketch2.addConstraint(Sketcher.Constraint("Tangent", 12, 2, 13, 1))
sketch2.addConstraint(Sketcher.Constraint("Tangent", 13, 2, 14, 1))
sketch2.addConstraint(Sketcher.Constraint("Tangent", 14, 2, 15, 1))
sketch2.addConstraint(Sketcher.Constraint("Tangent", 15, 2, 16, 1))
sketch2.addConstraint(Sketcher.Constraint("Tangent", 16, 2, 11, 1))
sketch2.addConstraint(Sketcher.Constraint("Tangent", 17, 2, 18, 1))
sketch2.addConstraint(Sketcher.Constraint("Tangent", 18, 2, 19, 1))
sketch2.addConstraint(Sketcher.Constraint("Tangent", 19, 2, 20, 1))
sketch2.addConstraint(Sketcher.Constraint("Coincident", 20, 2, 21, 1))
sketch2.addConstraint(Sketcher.Constraint("Tangent", 21, 2, 22, 1))
sketch2.addConstraint(Sketcher.Constraint("Tangent", 22, 2, 23, 1))
sketch2.addConstraint(Sketcher.Constraint("Tangent", 23, 2, 17, 1))
sketch2.addConstraint(Sketcher.Constraint("Tangent", 24, 2, 25, 1))
sketch2.addConstraint(Sketcher.Constraint("Tangent", 25, 2, 26, 1))
sketch2.addConstraint(Sketcher.Constraint("Tangent", 26, 2, 27, 1))
sketch2.addConstraint(Sketcher.Constraint("Tangent", 27, 2, 28, 1))
sketch2.addConstraint(Sketcher.Constraint("Tangent", 28, 2, 29, 1))
sketch2.addConstraint(Sketcher.Constraint("Tangent", 29, 2, 24, 1))
sketch2.addConstraint(Sketcher.Constraint("Tangent", 30, 2, 31, 1))
sketch2.addConstraint(Sketcher.Constraint("Tangent", 31, 2, 32, 1))
sketch2.addConstraint(Sketcher.Constraint("Tangent", 32, 2, 33, 1))
sketch2.addConstraint(Sketcher.Constraint("Tangent", 33, 2, 34, 1))
sketch2.addConstraint(Sketcher.Constraint("Tangent", 34, 2, 35, 1))
sketch2.addConstraint(Sketcher.Constraint("Tangent", 35, 2, 30, 1))
sketch2.addConstraint(Sketcher.Constraint("Tangent", 36, 2, 37, 1))
sketch2.addConstraint(Sketcher.Constraint("Tangent", 37, 2, 38, 1))
sketch2.addConstraint(Sketcher.Constraint("Tangent", 38, 2, 39, 1))
sketch2.addConstraint(Sketcher.Constraint("Tangent", 39, 2, 40, 1))
sketch2.addConstraint(Sketcher.Constraint("Tangent", 40, 2, 41, 1))
sketch2.addConstraint(Sketcher.Constraint("Tangent", 41, 2, 36, 1))
sketch2.addConstraint(Sketcher.Constraint("Tangent", 42, 2, 43, 1))
sketch2.addConstraint(Sketcher.Constraint("Tangent", 43, 2, 44, 1))
sketch2.addConstraint(Sketcher.Constraint("Tangent", 44, 2, 45, 1))
sketch2.addConstraint(Sketcher.Constraint("Tangent", 45, 2, 46, 1))
sketch2.addConstraint(Sketcher.Constraint("Tangent", 46, 2, 47, 1))
sketch2.addConstraint(Sketcher.Constraint("Tangent", 47, 2, 42, 1))
sketch2.addConstraint(Sketcher.Constraint("Tangent", 48, 2, 49, 1))
sketch2.addConstraint(Sketcher.Constraint("Tangent", 49, 2, 50, 1))
sketch2.addConstraint(Sketcher.Constraint("Tangent", 50, 2, 51, 1))
sketch2.addConstraint(Sketcher.Constraint("Tangent", 51, 2, 52, 1))
sketch2.addConstraint(Sketcher.Constraint("Tangent", 52, 2, 53, 1))
sketch2.addConstraint(Sketcher.Constraint("Tangent", 53, 2, 48, 1))
sketch2.addConstraint(Sketcher.Constraint("Tangent", 54, 2, 55, 1))
sketch2.addConstraint(Sketcher.Constraint("Coincident", 55, 2, 56, 1))
sketch2.addConstraint(Sketcher.Constraint("Coincident", 56, 2, 57, 1))
sketch2.addConstraint(Sketcher.Constraint("Tangent", 57, 2, 58, 1))
sketch2.addConstraint(Sketcher.Constraint("Tangent", 58, 2, 59, 1))
sketch2.addConstraint(Sketcher.Constraint("Tangent", 59, 2, 60, 1))
sketch2.addConstraint(Sketcher.Constraint("Tangent", 60, 2, 61, 1))
sketch2.addConstraint(Sketcher.Constraint("Tangent", 61, 2, 54, 1))
sketch2.addConstraint(Sketcher.Constraint("Tangent", 62, 2, 63, 1))
sketch2.addConstraint(Sketcher.Constraint("Tangent", 63, 2, 64, 1))
sketch2.addConstraint(Sketcher.Constraint("Tangent", 64, 2, 65, 1))
sketch2.addConstraint(Sketcher.Constraint("Tangent", 65, 2, 66, 1))
sketch2.addConstraint(Sketcher.Constraint("Tangent", 66, 2, 67, 1))
sketch2.addConstraint(Sketcher.Constraint("Tangent", 67, 2, 68, 1))
sketch2.addConstraint(Sketcher.Constraint("Coincident", 68, 2, 62, 1))
sketch2.addConstraint(Sketcher.Constraint("Tangent", 69, 2, 70, 1))
sketch2.addConstraint(Sketcher.Constraint("Tangent", 70, 2, 71, 1))
sketch2.addConstraint(Sketcher.Constraint("Tangent", 71, 2, 72, 1))
sketch2.addConstraint(Sketcher.Constraint("Tangent", 72, 2, 73, 1))
sketch2.addConstraint(Sketcher.Constraint("Tangent", 73, 2, 74, 1))
sketch2.addConstraint(Sketcher.Constraint("Tangent", 74, 2, 69, 1))
sketch2.addConstraint(Sketcher.Constraint("Tangent", 75, 2, 76, 1))
sketch2.addConstraint(Sketcher.Constraint("Tangent", 76, 2, 77, 1))
sketch2.addConstraint(Sketcher.Constraint("Tangent", 77, 2, 78, 1))
sketch2.addConstraint(Sketcher.Constraint("Tangent", 78, 2, 79, 1))
sketch2.addConstraint(Sketcher.Constraint("Tangent", 79, 2, 80, 1))
sketch2.addConstraint(Sketcher.Constraint("Tangent", 80, 2, 75, 1))
sketch2.addConstraint(Sketcher.Constraint("Tangent", 81, 2, 82, 1))
sketch2.addConstraint(Sketcher.Constraint("Tangent", 82, 2, 83, 1))
sketch2.addConstraint(Sketcher.Constraint("Coincident", 83, 2, 84, 1))
sketch2.addConstraint(Sketcher.Constraint("Tangent", 84, 2, 85, 1))
sketch2.addConstraint(Sketcher.Constraint("Tangent", 85, 2, 86, 1))
sketch2.addConstraint(Sketcher.Constraint("Tangent", 86, 2, 81, 1))
sketch2.addConstraint(Sketcher.Constraint("Vertical", 1))
sketch2.addConstraint(Sketcher.Constraint("Horizontal", 6))
sketch2.addConstraint(Sketcher.Constraint("Horizontal", 12))
sketch2.addConstraint(Sketcher.Constraint("Horizontal", 18))
sketch2.addConstraint(Sketcher.Constraint("Vertical", 24))
sketch2.addConstraint(Sketcher.Constraint("Vertical", 30))
sketch2.addConstraint(Sketcher.Constraint("Horizontal", 37))
sketch2.addConstraint(Sketcher.Constraint("Horizontal", 43))
sketch2.addConstraint(Sketcher.Constraint("Vertical", 53))
sketch2.addConstraint(Sketcher.Constraint("Vertical", 74))
sketch2.addConstraint(Sketcher.Constraint("Horizontal", 78))
sketch2.addConstraint(Sketcher.Constraint("Vertical", 86))
sketch2.addConstraint(Sketcher.Constraint("Equal", 0, 2))
sketch2.addConstraint(Sketcher.Constraint("Equal", 2, 4))
sketch2.addConstraint(Sketcher.Constraint("Equal", 4, 7))
sketch2.addConstraint(Sketcher.Constraint("Equal", 7, 10))
sketch2.addConstraint(Sketcher.Constraint("Equal", 10, 11))
sketch2.addConstraint(Sketcher.Constraint("Equal", 11, 13))
sketch2.addConstraint(Sketcher.Constraint("Equal", 13, 15))
sketch2.addConstraint(Sketcher.Constraint("Equal", 15, 17))
sketch2.addConstraint(Sketcher.Constraint("Equal", 17, 19))
sketch2.addConstraint(Sketcher.Constraint("Equal", 19, 22))
sketch2.addConstraint(Sketcher.Constraint("Equal", 22, 25))
sketch2.addConstraint(Sketcher.Constraint("Equal", 25, 27))
sketch2.addConstraint(Sketcher.Constraint("Equal", 27, 29))
sketch2.addConstraint(Sketcher.Constraint("Equal", 29, 31))
sketch2.addConstraint(Sketcher.Constraint("Equal", 31, 33))
sketch2.addConstraint(Sketcher.Constraint("Equal", 33, 35))
sketch2.addConstraint(Sketcher.Constraint("Equal", 35, 36))
sketch2.addConstraint(Sketcher.Constraint("Equal", 36, 38))
sketch2.addConstraint(Sketcher.Constraint("Equal", 38, 40))
sketch2.addConstraint(Sketcher.Constraint("Equal", 40, 42))
sketch2.addConstraint(Sketcher.Constraint("Equal", 42, 44))
sketch2.addConstraint(Sketcher.Constraint("Equal", 44, 46))
sketch2.addConstraint(Sketcher.Constraint("Equal", 46, 48))
sketch2.addConstraint(Sketcher.Constraint("Equal", 48, 50))
sketch2.addConstraint(Sketcher.Constraint("Equal", 50, 52))
sketch2.addConstraint(Sketcher.Constraint("Equal", 52, 54))
sketch2.addConstraint(Sketcher.Constraint("Equal", 54, 58))
sketch2.addConstraint(Sketcher.Constraint("Equal", 58, 60))
sketch2.addConstraint(Sketcher.Constraint("Equal", 60, 63))
sketch2.addConstraint(Sketcher.Constraint("Equal", 63, 65))
sketch2.addConstraint(Sketcher.Constraint("Equal", 65, 67))
sketch2.addConstraint(Sketcher.Constraint("Equal", 67, 69))
sketch2.addConstraint(Sketcher.Constraint("Equal", 69, 71))
sketch2.addConstraint(Sketcher.Constraint("Equal", 71, 73))
sketch2.addConstraint(Sketcher.Constraint("Equal", 73, 75))
sketch2.addConstraint(Sketcher.Constraint("Equal", 75, 77))
sketch2.addConstraint(Sketcher.Constraint("Equal", 77, 79))
sketch2.addConstraint(Sketcher.Constraint("Equal", 79, 81))
sketch2.addConstraint(Sketcher.Constraint("Equal", 81, 83))
sketch2.addConstraint(Sketcher.Constraint("Equal", 83, 85))
sketch2.addConstraint(Sketcher.Constraint("Symmetric", 13, 3, 17, 3, -2))
sketch2.addConstraint(Sketcher.Constraint("Symmetric", 15, 3, 22, 3, -2))
sketch2.addConstraint(Sketcher.Constraint("Symmetric", 38, 3, 42, 3, -2))
sketch2.addConstraint(Sketcher.Constraint("Symmetric", 40, 3, 46, 3, -2))
sketch2.addConstraint(Sketcher.Constraint("Symmetric", 25, 3, 52, 3, -2))
sketch2.addConstraint(Sketcher.Constraint("Symmetric", 60, 3, 65, 3, -2))
sketch2.addConstraint(Sketcher.Constraint("Symmetric", 58, 3, 67, 3, -2))
sketch2.addConstraint(Sketcher.Constraint("Symmetric", 4, 3, 71, 3, -2))
sketch2.addConstraint(Sketcher.Constraint("Symmetric", 35, 3, 81, 3, -2))
sketch2.addConstraint(Sketcher.Constraint("Symmetric", 7, 2, 9, 2, -2))
sketch2.addConstraint(Sketcher.Constraint("Symmetric", 16, 2, 19, 2, -2))
sketch2.addConstraint(Sketcher.Constraint("Symmetric", 76, 2, 79, 2, -2))
sketch2.addConstraint(Sketcher.Constraint("Symmetric", 31, 2, 84, 2, -2))
sketch2.addConstraint(Sketcher.Constraint("Parallel", 5, 14))
sketch2.addConstraint(Sketcher.Constraint("Parallel", 3, 16))
sketch2.addConstraint(Sketcher.Constraint("Parallel", 23, 26))
sketch2.addConstraint(Sketcher.Constraint("Parallel", 8, 28))
sketch2.addConstraint(Sketcher.Constraint("Parallel", 9, 32))
sketch2.addConstraint(Sketcher.Constraint("Parallel", 21, 34))
sketch2.addConstraint(Sketcher.Constraint("Parallel", 34, 39))
sketch2.addConstraint(Sketcher.Constraint("Parallel", 26, 41))
sketch2.addConstraint(Sketcher.Constraint("Parallel", 14, 45))
sketch2.addConstraint(Sketcher.Constraint("Parallel", 45, 51))
sketch2.addConstraint(Sketcher.Constraint("Parallel", 49, 55))
sketch2.addConstraint(Sketcher.Constraint("Parallel", 32, 57))
sketch2.addConstraint(Sketcher.Constraint("Parallel", 28, 59))
sketch2.addConstraint(Sketcher.Constraint("Parallel", 51, 61))
sketch2.addConstraint(Sketcher.Constraint("Parallel", 59, 62))
sketch2.addConstraint(Sketcher.Constraint("Parallel", 41, 64))
sketch2.addConstraint(Sketcher.Constraint("Parallel", 62, 68))
sketch2.addConstraint(Sketcher.Constraint("Parallel", 64, 70))
sketch2.addConstraint(Sketcher.Constraint("Parallel", 39, 72))
sketch2.addConstraint(Sketcher.Constraint("Parallel", 66, 76))
sketch2.addConstraint(Sketcher.Constraint("Parallel", 47, 82))
sketch2.addConstraint(Sketcher.Constraint("Radius", 0, Q("2 mm")))
sketch2.addConstraint(Sketcher.Constraint("DistanceX", -1, 1, 0, 3, Q("90 mm")))
sketch2.addConstraint(Sketcher.Constraint("DistanceX", 25, 3, -1, 1, Q("51 mm")))
sketch2.addConstraint(Sketcher.Constraint("DistanceX", 31, 3, -1, 1, Q("54 mm")))
sketch2.addConstraint(Sketcher.Constraint("DistanceY", -1, 1, 7, 3, Q("41.5 mm")))
sketch2.addConstraint(Sketcher.Constraint("DistanceY", -1, 1, 11, 3, Q("88.5 mm")))
sketch2.addConstraint(Sketcher.Constraint("DistanceY", 36, 3, -1, 1, Q("88.5 mm")))
sketch2.addConstraint(Sketcher.Constraint("DistanceY", -1, 1, 77, 3, Q("4.5 mm")))
sketch2.addConstraint(Sketcher.Constraint("Angle", 8, Q("-21.2491 deg")))
sketch2.addConstraint(Sketcher.Constraint("DistanceX", 12, 2, 12, 1, Q("32.849 mm")))
sketch2.addConstraint(Sketcher.Constraint("DistanceX", 37, 1, 37, 2, Q("29.849 mm")))
sketch2.addConstraint(Sketcher.Constraint("DistanceX", 78, 1, 78, 2, Q("77.753 mm")))
sketch2.addConstraint(Sketcher.Constraint("DistanceY", 83, 3, -1, 1, Q("5.92 mm")))
sketch2.addConstraint(Sketcher.Constraint("DistanceY", -1, 1, 68, 2, Q("41.17 mm")))
sketch2.addConstraint(Sketcher.Constraint("Distance", 39, Q("66.663 mm")))
sketch2.addConstraint(Sketcher.Constraint("Distance", 49, Q("3.132 mm")))
sketch2.addConstraint(Sketcher.Constraint("Distance", 61, Q("38.645 mm")))
sketch2.addConstraint(Sketcher.Constraint("Distance", 68, Q("41.002 mm")))
sketch2.addConstraint(Sketcher.Constraint("Distance", 70, Q("60.979 mm")))
sketch2.addConstraint(Sketcher.Constraint("DistanceX", 6, 2, 6, 1, Q("62.8808 mm")))
sketch2.addConstraint(Sketcher.Constraint("DistanceY", 1, 1, 1, 2, Q("123.2085 mm")))
sketch2.addConstraint(Sketcher.Constraint("DistanceY", 24, 1, 24, 2, Q("13.5063 mm")))
sketch2.addConstraint(Sketcher.Constraint("DistanceY", 30, 1, 30, 2, Q("59.2153 mm")))
sketch2.addConstraint(Sketcher.Constraint("DistanceY", 53, 2, 53, 1, Q("13.3403 mm")))
sketch2.addConstraint(Sketcher.Constraint("DistanceY", 74, 2, 74, 1, Q("123.1053 mm")))
sketch2.addConstraint(Sketcher.Constraint("DistanceY", -1, 1, 29, 3, Q("49.106 mm")))
sketch2.addConstraint(Sketcher.Constraint("DistanceY", 31, 3, -1, 1, Q("1.381 mm")))
sketch2.addConstraint(Sketcher.Constraint("DistanceX", -1, 1, 54, 3, Q("55.985 mm")))
sketch2.addConstraint(Sketcher.Constraint("DistanceY", 4, 2, -1, 1, Q("3.697 mm")))
sketch2.addConstraint(Sketcher.Constraint("DistanceX", 20, 2, -1, 1, Q("88.113 mm")))
sketch2.addConstraint(Sketcher.Constraint("DistanceY", -1, 1, 55, 2, Q("41.247 mm")))
sketch2.addConstraint(Sketcher.Constraint("DistanceY", -1, 1, 61, 2, Q("42.091 mm")))
sketch2.addConstraint(Sketcher.Constraint("Distance", 20, Q("3.6573 mm")))
sketch2.addConstraint(Sketcher.Constraint("Distance", 56, Q("0.2113 mm")))
sketch2.addConstraint(Sketcher.Constraint("DistanceX", 36, 3, -1, 1, Q("86.8996 mm")))
sketch2.setExpression("Constraints[173]", "Params.sketch2_radius")
pocket1 = body.newObject("PartDesign::Pocket", "Pocket")
pocket1.Profile = sketch2
pocket1.setExpression("Length", "Params.pocket1_length")

doc.recompute()
